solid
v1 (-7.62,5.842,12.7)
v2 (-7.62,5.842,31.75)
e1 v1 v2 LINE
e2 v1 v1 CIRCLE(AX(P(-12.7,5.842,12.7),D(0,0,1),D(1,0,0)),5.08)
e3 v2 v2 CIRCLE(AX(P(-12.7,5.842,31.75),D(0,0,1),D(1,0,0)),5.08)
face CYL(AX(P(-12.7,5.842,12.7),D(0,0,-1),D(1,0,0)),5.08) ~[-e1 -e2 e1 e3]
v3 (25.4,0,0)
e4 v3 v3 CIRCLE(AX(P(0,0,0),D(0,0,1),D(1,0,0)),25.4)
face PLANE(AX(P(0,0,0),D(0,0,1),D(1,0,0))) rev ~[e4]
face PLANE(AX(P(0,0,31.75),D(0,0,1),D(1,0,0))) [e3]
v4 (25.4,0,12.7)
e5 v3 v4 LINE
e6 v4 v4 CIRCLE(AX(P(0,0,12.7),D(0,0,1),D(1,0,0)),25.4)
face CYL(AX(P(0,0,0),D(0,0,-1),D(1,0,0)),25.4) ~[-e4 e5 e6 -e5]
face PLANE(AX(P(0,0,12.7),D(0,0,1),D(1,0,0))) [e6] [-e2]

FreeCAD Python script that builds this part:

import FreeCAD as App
import Part
import Sketcher
Q = App.Units.Quantity

doc = App.newDocument("Part")
body = doc.addObject("PartDesign::Body", "Body")

# Sketch on XY plane
sketch1 = body.newObject("Sketcher::SketchObject", "Sketch")
sketch1.AttachmentSupport = (doc.getObject("XY_Plane"), [""])
sketch1.MapMode = "FlatFace"
sketch1.addGeometry(Part.Circle(App.Vector(0, 0, 0), App.Vector(0, 0, 1), 25), False)
sketch1.addConstraint(Sketcher.Constraint("Coincident", 0, 3, -1, 1))
sketch1.addConstraint(Sketcher.Constraint("Diameter", 0, Q("2 in")))
pad1 = body.newObject("PartDesign::Pad", "Pad")
pad1.Profile = sketch1
pad1.Length = Q("0.5 in")

# Sketch on XY plane
sketch2 = body.newObject("Sketcher::SketchObject", "Sketch001")
sketch2.AttachmentSupport = (doc.getObject("XY_Plane"), [""])
sketch2.MapMode = "FlatFace"
sketch2.AttachmentOffset = App.Placement(App.Vector(0, 0, 0.5 * 25.4), App.Rotation())
sketch2.addGeometry(Part.Circle(App.Vector(-13, 6, 0), App.Vector(0, 0, 1), 5), False)
sketch2.addConstraint(Sketcher.Constraint("Diameter", 0, Q("0.4 in")))
sketch2.addConstraint(Sketcher.Constraint("DistanceX", 0, 3, -1, 1, Q("0.5 in")))
sketch2.addConstraint(Sketcher.Constraint("DistanceY", -1, 1, 0, 3, Q("0.23 in")))
pad2 = body.newObject("PartDesign::Pad", "Pad001")
pad2.Profile = sketch2
pad2.Length = Q("0.75 in")

doc.recompute()
